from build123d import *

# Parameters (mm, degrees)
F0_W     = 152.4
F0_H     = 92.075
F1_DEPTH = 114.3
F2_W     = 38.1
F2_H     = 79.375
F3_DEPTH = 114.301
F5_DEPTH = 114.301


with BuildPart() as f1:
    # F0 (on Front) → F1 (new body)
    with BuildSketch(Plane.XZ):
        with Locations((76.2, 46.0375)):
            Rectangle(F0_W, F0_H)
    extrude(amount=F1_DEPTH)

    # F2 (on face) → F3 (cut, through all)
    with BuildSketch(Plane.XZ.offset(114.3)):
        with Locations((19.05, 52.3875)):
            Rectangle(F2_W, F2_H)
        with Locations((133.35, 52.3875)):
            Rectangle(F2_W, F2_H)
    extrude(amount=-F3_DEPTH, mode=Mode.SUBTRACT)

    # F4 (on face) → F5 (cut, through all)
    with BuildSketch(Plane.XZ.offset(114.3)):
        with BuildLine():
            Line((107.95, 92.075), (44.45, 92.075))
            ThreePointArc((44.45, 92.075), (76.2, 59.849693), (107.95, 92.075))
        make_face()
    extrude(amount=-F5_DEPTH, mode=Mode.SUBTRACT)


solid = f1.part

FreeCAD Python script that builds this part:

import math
import FreeCAD as App
import Part
import Sketcher
Q = App.Units.Quantity


def add_polygon(sketch, points):
    """Adds a closed chain of lines whose ends are joined by coincident constraints."""
    first, n = sketch.GeometryCount, len(points)
    for a, b in zip(points, points[1:] + points[:1]):
        sketch.addGeometry(Part.LineSegment(App.Vector(*a, 0), App.Vector(*b, 0)), False)
    for i in range(n):
        sketch.addConstraint(Sketcher.Constraint("Coincident", first + i, 2, first + (i + 1) % n, 1))

doc = App.newDocument("Part")
params = doc.addObject("Spreadsheet::Sheet", "Params")
for row, (alias, value) in enumerate([
    ("sketch1_width", "6 in"),
    ("sketch1_height", "3.625 in"),
    ("pad1_length", "4.5 in"),
    ("sketch2_width", "1.5 in"),
    ("sketch2_height", "3.125 in"),
    ("sketch3_width", "2.5 in"),
], start=1):
    params.set(f"A{row}", alias)
    params.set(f"B{row}", "=" + value)
    params.setAlias(f"B{row}", alias)

body = doc.addObject("PartDesign::Body", "Body")

sketch1 = body.newObject("Sketcher::SketchObject", "Sketch")
sketch1.AttachmentSupport = (doc.getObject("XZ_Plane"), [""])
sketch1.MapMode = "FlatFace"
add_polygon(sketch1, [(0, 92.075), (0, 0), (152.4, 0), (152.4, 92.075)])
sketch1.addConstraint(Sketcher.Constraint("Vertical", 0))
sketch1.addConstraint(Sketcher.Constraint("Horizontal", 1))
sketch1.addConstraint(Sketcher.Constraint("Vertical", 2))
sketch1.addConstraint(Sketcher.Constraint("Horizontal", 3))
sketch1.addConstraint(Sketcher.Constraint("Coincident", 0, 2, -1, 1))
sketch1.addConstraint(Sketcher.Constraint("DistanceX", 1, 1, 1, 2, Q("6 in")))
sketch1.addConstraint(Sketcher.Constraint("DistanceY", 0, 2, 0, 1, Q("3.625 in")))
sketch1.setExpression("Constraints[9]", "Params.sketch1_width")
sketch1.setExpression("Constraints[10]", "Params.sketch1_height")
pad1 = body.newObject("PartDesign::Pad", "Pad")
pad1.Profile = sketch1
pad1.setExpression("Length", "Params.pad1_length")

sketch2 = body.newObject("Sketcher::SketchObject", "Sketch001")
sketch2.AttachmentSupport = (doc.getObject("XZ_Plane"), [""])
sketch2.MapMode = "FlatFace"
sketch2.AttachmentOffset = App.Placement(App.Vector(0, 0, 4.5 * 25.4), App.Rotation())
add_polygon(sketch2, [(0, 92.075), (0, 12.7), (38.1, 12.7), (38.1, 92.075)])
add_polygon(sketch2, [(114.3, 92.075), (114.3, 12.7), (152.4, 12.7), (152.4, 92.075)])
sketch2.addConstraint(Sketcher.Constraint("Vertical", 0))
sketch2.addConstraint(Sketcher.Constraint("Horizontal", 1))
sketch2.addConstraint(Sketcher.Constraint("Vertical", 2))
sketch2.addConstraint(Sketcher.Constraint("Horizontal", 3))
sketch2.addConstraint(Sketcher.Constraint("Vertical", 4))
sketch2.addConstraint(Sketcher.Constraint("Horizontal", 5))
sketch2.addConstraint(Sketcher.Constraint("Vertical", 6))
sketch2.addConstraint(Sketcher.Constraint("Horizontal", 7))
sketch2.addConstraint(Sketcher.Constraint("PointOnObject", 0, 2, -2))
sketch2.addConstraint(Sketcher.Constraint("Horizontal", 1, 2, 4, 2))
sketch2.addConstraint(Sketcher.Constraint("Horizontal", 3, 2, 6, 2))
sketch2.addConstraint(Sketcher.Constraint("Equal", 3, 5))
sketch2.addConstraint(Sketcher.Constraint("DistanceX", 1, 1, 1, 2, Q("1.5 in")))
sketch2.addConstraint(Sketcher.Constraint("DistanceX", -1, 1, 5, 2, Q("6 in")))
sketch2.addConstraint(Sketcher.Constraint("DistanceY", -1, 1, 0, 2, Q("0.5 in")))
sketch2.addConstraint(Sketcher.Constraint("DistanceY", 0, 2, 0, 1, Q("3.125 in")))
sketch2.setExpression("Constraints[20]", "Params.sketch2_width")
sketch2.setExpression("Constraints[23]", "Params.sketch2_height")
pocket1 = body.newObject("PartDesign::Pocket", "Pocket")
pocket1.Profile = sketch2
pocket1.Type = "ThroughAll"

sketch3 = body.newObject("Sketcher::SketchObject", "Sketch002")
sketch3.AttachmentSupport = (doc.getObject("XZ_Plane"), [""])
sketch3.MapMode = "FlatFace"
sketch3.AttachmentOffset = App.Placement(App.Vector(0, 0, 4.5 * 25.4), App.Rotation())
sketch3.addGeometry(Part.LineSegment(App.Vector(107.95, 92.075, 0), App.Vector(44.45, 92.075, 0)), False)
sketch3.addGeometry(Part.ArcOfCircle(Part.Circle(App.Vector(76.2, 91.603198, 0), App.Vector(0, 0, 1), 31.753505), math.radians(179.148653), math.radians(360.851347)), False)
sketch3.addConstraint(Sketcher.Constraint("Coincident", 0, 1, 1, 2))
sketch3.addConstraint(Sketcher.Constraint("Coincident", 1, 1, 0, 2))
sketch3.addConstraint(Sketcher.Constraint("Horizontal", 0))
sketch3.addConstraint(Sketcher.Constraint("DistanceX", 0, 2, 0, 1, Q("2.5 in")))
sketch3.addConstraint(Sketcher.Constraint("DistanceX", -1, 1, 1, 3, Q("3 in")))
sketch3.addConstraint(Sketcher.Constraint("DistanceY", -1, 1, 0, 1, Q("3.625 in")))
sketch3.addConstraint(Sketcher.Constraint("Radius", 1, Q("31.753505 mm")))
sketch3.setExpression("Constraints[3]", "Params.sketch3_width")
pocket2 = body.newObject("PartDesign::Pocket", "Pocket001")
pocket2.Profile = sketch3
pocket2.Type = "ThroughAll"

doc.recompute()
